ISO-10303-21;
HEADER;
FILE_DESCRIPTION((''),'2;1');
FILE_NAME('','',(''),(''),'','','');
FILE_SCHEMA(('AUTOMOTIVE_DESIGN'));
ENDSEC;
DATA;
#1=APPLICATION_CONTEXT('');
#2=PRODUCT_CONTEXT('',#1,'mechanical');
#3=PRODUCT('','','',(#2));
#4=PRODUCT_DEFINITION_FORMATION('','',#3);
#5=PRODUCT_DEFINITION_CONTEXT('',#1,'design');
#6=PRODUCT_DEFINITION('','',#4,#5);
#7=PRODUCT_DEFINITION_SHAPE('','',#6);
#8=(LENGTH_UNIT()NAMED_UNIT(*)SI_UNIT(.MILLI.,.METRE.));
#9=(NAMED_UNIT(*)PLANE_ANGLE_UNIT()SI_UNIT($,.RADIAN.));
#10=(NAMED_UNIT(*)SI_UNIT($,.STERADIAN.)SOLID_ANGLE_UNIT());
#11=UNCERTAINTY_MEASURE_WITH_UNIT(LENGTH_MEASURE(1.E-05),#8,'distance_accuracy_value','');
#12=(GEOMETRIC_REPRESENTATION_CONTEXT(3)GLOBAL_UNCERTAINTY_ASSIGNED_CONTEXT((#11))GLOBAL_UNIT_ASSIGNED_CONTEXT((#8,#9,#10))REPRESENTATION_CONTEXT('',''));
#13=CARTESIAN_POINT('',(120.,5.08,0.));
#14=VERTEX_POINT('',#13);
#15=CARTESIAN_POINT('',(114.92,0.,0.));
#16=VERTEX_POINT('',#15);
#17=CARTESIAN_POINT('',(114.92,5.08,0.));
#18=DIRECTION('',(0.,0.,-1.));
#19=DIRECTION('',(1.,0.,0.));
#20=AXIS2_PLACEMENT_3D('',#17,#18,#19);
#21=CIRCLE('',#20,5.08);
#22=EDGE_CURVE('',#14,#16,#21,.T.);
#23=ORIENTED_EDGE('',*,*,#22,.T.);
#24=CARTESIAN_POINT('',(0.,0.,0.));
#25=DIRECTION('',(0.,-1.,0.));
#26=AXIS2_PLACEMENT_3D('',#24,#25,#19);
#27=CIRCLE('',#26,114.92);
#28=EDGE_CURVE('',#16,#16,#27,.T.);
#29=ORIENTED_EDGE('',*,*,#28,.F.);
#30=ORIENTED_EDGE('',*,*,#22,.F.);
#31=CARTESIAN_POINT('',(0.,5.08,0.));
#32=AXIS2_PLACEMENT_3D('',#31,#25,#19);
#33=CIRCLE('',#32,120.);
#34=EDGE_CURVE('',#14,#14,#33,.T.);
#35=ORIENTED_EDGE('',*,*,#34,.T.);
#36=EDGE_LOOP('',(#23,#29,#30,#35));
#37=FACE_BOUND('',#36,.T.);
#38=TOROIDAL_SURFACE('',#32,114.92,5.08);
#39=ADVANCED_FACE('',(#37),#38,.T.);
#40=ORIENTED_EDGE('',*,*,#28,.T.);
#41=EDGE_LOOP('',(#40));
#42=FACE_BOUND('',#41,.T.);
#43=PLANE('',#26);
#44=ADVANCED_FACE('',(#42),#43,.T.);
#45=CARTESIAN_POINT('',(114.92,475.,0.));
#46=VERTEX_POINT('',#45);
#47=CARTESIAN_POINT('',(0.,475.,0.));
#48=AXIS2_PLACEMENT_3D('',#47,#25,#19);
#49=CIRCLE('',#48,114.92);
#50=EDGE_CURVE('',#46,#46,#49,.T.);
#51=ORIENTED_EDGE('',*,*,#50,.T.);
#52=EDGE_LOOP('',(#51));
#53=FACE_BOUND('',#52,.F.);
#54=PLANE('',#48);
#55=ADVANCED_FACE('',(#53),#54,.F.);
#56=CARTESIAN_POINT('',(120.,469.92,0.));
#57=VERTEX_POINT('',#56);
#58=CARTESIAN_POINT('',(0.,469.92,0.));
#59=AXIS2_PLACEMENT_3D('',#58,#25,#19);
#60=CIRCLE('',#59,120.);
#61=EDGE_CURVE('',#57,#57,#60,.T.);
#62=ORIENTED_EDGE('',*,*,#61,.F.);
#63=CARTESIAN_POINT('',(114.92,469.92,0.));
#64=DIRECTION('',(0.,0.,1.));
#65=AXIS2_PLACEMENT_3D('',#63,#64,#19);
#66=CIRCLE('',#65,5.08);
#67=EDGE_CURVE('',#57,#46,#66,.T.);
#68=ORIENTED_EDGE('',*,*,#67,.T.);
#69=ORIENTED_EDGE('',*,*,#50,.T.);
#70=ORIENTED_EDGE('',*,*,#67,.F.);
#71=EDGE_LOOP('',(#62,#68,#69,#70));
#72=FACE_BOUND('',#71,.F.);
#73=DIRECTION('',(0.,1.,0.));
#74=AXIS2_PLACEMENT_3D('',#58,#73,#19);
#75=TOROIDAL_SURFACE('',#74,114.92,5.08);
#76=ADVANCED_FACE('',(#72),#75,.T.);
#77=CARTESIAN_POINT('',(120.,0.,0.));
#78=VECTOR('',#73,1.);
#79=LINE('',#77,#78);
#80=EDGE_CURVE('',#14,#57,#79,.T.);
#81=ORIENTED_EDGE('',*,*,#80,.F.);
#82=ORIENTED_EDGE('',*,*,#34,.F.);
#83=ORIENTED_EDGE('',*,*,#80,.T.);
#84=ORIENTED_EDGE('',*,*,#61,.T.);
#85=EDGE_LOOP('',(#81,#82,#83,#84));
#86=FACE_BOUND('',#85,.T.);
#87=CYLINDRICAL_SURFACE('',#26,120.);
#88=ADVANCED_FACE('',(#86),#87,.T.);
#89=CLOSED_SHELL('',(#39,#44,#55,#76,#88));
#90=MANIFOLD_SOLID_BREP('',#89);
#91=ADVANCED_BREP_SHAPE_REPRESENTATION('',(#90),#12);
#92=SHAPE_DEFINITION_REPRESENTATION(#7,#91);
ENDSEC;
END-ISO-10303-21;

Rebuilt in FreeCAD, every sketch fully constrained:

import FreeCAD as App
import Part
import Sketcher

V = App.Vector
Q = App.Units.Quantity


def edges_at(feature, points):
    """Names of the edges that pass closest to the given points."""
    edges = feature.Shape.Edges
    near = lambda p: min(range(len(edges)), key=lambda i: edges[i].distToShape(Part.Vertex(*p))[0])
    return sorted({f"Edge{near(p) + 1}" for p in points})

doc = App.newDocument("Part")
body = doc.addObject("PartDesign::Body", "Body")

# Sketch on XZ plane
sketch1 = body.newObject("Sketcher::SketchObject", "Sketch")
sketch1.AttachmentSupport = (doc.getObject("XZ_Plane"), [""])
sketch1.MapMode = "FlatFace"
sketch1.addGeometry(Part.Circle(V(0, 0, 0), V(0, 0, 1), 120), False)
sketch1.addConstraint(Sketcher.Constraint("Coincident", 0, 3, -1, 1))
sketch1.addConstraint(Sketcher.Constraint("Diameter", 0, Q("240 mm")))
pad1 = body.newObject("PartDesign::Pad", "Pad")
pad1.Profile = sketch1
pad1.Length = 475
pad1.Reversed = True
doc.recompute()

fillet = body.newObject("PartDesign::Fillet", "Fillet")
fillet.Base = (pad1, edges_at(pad1, [(-120, 0, 0), (-120, 475, 0)]))
fillet.Radius = 5.08

doc.recompute()
